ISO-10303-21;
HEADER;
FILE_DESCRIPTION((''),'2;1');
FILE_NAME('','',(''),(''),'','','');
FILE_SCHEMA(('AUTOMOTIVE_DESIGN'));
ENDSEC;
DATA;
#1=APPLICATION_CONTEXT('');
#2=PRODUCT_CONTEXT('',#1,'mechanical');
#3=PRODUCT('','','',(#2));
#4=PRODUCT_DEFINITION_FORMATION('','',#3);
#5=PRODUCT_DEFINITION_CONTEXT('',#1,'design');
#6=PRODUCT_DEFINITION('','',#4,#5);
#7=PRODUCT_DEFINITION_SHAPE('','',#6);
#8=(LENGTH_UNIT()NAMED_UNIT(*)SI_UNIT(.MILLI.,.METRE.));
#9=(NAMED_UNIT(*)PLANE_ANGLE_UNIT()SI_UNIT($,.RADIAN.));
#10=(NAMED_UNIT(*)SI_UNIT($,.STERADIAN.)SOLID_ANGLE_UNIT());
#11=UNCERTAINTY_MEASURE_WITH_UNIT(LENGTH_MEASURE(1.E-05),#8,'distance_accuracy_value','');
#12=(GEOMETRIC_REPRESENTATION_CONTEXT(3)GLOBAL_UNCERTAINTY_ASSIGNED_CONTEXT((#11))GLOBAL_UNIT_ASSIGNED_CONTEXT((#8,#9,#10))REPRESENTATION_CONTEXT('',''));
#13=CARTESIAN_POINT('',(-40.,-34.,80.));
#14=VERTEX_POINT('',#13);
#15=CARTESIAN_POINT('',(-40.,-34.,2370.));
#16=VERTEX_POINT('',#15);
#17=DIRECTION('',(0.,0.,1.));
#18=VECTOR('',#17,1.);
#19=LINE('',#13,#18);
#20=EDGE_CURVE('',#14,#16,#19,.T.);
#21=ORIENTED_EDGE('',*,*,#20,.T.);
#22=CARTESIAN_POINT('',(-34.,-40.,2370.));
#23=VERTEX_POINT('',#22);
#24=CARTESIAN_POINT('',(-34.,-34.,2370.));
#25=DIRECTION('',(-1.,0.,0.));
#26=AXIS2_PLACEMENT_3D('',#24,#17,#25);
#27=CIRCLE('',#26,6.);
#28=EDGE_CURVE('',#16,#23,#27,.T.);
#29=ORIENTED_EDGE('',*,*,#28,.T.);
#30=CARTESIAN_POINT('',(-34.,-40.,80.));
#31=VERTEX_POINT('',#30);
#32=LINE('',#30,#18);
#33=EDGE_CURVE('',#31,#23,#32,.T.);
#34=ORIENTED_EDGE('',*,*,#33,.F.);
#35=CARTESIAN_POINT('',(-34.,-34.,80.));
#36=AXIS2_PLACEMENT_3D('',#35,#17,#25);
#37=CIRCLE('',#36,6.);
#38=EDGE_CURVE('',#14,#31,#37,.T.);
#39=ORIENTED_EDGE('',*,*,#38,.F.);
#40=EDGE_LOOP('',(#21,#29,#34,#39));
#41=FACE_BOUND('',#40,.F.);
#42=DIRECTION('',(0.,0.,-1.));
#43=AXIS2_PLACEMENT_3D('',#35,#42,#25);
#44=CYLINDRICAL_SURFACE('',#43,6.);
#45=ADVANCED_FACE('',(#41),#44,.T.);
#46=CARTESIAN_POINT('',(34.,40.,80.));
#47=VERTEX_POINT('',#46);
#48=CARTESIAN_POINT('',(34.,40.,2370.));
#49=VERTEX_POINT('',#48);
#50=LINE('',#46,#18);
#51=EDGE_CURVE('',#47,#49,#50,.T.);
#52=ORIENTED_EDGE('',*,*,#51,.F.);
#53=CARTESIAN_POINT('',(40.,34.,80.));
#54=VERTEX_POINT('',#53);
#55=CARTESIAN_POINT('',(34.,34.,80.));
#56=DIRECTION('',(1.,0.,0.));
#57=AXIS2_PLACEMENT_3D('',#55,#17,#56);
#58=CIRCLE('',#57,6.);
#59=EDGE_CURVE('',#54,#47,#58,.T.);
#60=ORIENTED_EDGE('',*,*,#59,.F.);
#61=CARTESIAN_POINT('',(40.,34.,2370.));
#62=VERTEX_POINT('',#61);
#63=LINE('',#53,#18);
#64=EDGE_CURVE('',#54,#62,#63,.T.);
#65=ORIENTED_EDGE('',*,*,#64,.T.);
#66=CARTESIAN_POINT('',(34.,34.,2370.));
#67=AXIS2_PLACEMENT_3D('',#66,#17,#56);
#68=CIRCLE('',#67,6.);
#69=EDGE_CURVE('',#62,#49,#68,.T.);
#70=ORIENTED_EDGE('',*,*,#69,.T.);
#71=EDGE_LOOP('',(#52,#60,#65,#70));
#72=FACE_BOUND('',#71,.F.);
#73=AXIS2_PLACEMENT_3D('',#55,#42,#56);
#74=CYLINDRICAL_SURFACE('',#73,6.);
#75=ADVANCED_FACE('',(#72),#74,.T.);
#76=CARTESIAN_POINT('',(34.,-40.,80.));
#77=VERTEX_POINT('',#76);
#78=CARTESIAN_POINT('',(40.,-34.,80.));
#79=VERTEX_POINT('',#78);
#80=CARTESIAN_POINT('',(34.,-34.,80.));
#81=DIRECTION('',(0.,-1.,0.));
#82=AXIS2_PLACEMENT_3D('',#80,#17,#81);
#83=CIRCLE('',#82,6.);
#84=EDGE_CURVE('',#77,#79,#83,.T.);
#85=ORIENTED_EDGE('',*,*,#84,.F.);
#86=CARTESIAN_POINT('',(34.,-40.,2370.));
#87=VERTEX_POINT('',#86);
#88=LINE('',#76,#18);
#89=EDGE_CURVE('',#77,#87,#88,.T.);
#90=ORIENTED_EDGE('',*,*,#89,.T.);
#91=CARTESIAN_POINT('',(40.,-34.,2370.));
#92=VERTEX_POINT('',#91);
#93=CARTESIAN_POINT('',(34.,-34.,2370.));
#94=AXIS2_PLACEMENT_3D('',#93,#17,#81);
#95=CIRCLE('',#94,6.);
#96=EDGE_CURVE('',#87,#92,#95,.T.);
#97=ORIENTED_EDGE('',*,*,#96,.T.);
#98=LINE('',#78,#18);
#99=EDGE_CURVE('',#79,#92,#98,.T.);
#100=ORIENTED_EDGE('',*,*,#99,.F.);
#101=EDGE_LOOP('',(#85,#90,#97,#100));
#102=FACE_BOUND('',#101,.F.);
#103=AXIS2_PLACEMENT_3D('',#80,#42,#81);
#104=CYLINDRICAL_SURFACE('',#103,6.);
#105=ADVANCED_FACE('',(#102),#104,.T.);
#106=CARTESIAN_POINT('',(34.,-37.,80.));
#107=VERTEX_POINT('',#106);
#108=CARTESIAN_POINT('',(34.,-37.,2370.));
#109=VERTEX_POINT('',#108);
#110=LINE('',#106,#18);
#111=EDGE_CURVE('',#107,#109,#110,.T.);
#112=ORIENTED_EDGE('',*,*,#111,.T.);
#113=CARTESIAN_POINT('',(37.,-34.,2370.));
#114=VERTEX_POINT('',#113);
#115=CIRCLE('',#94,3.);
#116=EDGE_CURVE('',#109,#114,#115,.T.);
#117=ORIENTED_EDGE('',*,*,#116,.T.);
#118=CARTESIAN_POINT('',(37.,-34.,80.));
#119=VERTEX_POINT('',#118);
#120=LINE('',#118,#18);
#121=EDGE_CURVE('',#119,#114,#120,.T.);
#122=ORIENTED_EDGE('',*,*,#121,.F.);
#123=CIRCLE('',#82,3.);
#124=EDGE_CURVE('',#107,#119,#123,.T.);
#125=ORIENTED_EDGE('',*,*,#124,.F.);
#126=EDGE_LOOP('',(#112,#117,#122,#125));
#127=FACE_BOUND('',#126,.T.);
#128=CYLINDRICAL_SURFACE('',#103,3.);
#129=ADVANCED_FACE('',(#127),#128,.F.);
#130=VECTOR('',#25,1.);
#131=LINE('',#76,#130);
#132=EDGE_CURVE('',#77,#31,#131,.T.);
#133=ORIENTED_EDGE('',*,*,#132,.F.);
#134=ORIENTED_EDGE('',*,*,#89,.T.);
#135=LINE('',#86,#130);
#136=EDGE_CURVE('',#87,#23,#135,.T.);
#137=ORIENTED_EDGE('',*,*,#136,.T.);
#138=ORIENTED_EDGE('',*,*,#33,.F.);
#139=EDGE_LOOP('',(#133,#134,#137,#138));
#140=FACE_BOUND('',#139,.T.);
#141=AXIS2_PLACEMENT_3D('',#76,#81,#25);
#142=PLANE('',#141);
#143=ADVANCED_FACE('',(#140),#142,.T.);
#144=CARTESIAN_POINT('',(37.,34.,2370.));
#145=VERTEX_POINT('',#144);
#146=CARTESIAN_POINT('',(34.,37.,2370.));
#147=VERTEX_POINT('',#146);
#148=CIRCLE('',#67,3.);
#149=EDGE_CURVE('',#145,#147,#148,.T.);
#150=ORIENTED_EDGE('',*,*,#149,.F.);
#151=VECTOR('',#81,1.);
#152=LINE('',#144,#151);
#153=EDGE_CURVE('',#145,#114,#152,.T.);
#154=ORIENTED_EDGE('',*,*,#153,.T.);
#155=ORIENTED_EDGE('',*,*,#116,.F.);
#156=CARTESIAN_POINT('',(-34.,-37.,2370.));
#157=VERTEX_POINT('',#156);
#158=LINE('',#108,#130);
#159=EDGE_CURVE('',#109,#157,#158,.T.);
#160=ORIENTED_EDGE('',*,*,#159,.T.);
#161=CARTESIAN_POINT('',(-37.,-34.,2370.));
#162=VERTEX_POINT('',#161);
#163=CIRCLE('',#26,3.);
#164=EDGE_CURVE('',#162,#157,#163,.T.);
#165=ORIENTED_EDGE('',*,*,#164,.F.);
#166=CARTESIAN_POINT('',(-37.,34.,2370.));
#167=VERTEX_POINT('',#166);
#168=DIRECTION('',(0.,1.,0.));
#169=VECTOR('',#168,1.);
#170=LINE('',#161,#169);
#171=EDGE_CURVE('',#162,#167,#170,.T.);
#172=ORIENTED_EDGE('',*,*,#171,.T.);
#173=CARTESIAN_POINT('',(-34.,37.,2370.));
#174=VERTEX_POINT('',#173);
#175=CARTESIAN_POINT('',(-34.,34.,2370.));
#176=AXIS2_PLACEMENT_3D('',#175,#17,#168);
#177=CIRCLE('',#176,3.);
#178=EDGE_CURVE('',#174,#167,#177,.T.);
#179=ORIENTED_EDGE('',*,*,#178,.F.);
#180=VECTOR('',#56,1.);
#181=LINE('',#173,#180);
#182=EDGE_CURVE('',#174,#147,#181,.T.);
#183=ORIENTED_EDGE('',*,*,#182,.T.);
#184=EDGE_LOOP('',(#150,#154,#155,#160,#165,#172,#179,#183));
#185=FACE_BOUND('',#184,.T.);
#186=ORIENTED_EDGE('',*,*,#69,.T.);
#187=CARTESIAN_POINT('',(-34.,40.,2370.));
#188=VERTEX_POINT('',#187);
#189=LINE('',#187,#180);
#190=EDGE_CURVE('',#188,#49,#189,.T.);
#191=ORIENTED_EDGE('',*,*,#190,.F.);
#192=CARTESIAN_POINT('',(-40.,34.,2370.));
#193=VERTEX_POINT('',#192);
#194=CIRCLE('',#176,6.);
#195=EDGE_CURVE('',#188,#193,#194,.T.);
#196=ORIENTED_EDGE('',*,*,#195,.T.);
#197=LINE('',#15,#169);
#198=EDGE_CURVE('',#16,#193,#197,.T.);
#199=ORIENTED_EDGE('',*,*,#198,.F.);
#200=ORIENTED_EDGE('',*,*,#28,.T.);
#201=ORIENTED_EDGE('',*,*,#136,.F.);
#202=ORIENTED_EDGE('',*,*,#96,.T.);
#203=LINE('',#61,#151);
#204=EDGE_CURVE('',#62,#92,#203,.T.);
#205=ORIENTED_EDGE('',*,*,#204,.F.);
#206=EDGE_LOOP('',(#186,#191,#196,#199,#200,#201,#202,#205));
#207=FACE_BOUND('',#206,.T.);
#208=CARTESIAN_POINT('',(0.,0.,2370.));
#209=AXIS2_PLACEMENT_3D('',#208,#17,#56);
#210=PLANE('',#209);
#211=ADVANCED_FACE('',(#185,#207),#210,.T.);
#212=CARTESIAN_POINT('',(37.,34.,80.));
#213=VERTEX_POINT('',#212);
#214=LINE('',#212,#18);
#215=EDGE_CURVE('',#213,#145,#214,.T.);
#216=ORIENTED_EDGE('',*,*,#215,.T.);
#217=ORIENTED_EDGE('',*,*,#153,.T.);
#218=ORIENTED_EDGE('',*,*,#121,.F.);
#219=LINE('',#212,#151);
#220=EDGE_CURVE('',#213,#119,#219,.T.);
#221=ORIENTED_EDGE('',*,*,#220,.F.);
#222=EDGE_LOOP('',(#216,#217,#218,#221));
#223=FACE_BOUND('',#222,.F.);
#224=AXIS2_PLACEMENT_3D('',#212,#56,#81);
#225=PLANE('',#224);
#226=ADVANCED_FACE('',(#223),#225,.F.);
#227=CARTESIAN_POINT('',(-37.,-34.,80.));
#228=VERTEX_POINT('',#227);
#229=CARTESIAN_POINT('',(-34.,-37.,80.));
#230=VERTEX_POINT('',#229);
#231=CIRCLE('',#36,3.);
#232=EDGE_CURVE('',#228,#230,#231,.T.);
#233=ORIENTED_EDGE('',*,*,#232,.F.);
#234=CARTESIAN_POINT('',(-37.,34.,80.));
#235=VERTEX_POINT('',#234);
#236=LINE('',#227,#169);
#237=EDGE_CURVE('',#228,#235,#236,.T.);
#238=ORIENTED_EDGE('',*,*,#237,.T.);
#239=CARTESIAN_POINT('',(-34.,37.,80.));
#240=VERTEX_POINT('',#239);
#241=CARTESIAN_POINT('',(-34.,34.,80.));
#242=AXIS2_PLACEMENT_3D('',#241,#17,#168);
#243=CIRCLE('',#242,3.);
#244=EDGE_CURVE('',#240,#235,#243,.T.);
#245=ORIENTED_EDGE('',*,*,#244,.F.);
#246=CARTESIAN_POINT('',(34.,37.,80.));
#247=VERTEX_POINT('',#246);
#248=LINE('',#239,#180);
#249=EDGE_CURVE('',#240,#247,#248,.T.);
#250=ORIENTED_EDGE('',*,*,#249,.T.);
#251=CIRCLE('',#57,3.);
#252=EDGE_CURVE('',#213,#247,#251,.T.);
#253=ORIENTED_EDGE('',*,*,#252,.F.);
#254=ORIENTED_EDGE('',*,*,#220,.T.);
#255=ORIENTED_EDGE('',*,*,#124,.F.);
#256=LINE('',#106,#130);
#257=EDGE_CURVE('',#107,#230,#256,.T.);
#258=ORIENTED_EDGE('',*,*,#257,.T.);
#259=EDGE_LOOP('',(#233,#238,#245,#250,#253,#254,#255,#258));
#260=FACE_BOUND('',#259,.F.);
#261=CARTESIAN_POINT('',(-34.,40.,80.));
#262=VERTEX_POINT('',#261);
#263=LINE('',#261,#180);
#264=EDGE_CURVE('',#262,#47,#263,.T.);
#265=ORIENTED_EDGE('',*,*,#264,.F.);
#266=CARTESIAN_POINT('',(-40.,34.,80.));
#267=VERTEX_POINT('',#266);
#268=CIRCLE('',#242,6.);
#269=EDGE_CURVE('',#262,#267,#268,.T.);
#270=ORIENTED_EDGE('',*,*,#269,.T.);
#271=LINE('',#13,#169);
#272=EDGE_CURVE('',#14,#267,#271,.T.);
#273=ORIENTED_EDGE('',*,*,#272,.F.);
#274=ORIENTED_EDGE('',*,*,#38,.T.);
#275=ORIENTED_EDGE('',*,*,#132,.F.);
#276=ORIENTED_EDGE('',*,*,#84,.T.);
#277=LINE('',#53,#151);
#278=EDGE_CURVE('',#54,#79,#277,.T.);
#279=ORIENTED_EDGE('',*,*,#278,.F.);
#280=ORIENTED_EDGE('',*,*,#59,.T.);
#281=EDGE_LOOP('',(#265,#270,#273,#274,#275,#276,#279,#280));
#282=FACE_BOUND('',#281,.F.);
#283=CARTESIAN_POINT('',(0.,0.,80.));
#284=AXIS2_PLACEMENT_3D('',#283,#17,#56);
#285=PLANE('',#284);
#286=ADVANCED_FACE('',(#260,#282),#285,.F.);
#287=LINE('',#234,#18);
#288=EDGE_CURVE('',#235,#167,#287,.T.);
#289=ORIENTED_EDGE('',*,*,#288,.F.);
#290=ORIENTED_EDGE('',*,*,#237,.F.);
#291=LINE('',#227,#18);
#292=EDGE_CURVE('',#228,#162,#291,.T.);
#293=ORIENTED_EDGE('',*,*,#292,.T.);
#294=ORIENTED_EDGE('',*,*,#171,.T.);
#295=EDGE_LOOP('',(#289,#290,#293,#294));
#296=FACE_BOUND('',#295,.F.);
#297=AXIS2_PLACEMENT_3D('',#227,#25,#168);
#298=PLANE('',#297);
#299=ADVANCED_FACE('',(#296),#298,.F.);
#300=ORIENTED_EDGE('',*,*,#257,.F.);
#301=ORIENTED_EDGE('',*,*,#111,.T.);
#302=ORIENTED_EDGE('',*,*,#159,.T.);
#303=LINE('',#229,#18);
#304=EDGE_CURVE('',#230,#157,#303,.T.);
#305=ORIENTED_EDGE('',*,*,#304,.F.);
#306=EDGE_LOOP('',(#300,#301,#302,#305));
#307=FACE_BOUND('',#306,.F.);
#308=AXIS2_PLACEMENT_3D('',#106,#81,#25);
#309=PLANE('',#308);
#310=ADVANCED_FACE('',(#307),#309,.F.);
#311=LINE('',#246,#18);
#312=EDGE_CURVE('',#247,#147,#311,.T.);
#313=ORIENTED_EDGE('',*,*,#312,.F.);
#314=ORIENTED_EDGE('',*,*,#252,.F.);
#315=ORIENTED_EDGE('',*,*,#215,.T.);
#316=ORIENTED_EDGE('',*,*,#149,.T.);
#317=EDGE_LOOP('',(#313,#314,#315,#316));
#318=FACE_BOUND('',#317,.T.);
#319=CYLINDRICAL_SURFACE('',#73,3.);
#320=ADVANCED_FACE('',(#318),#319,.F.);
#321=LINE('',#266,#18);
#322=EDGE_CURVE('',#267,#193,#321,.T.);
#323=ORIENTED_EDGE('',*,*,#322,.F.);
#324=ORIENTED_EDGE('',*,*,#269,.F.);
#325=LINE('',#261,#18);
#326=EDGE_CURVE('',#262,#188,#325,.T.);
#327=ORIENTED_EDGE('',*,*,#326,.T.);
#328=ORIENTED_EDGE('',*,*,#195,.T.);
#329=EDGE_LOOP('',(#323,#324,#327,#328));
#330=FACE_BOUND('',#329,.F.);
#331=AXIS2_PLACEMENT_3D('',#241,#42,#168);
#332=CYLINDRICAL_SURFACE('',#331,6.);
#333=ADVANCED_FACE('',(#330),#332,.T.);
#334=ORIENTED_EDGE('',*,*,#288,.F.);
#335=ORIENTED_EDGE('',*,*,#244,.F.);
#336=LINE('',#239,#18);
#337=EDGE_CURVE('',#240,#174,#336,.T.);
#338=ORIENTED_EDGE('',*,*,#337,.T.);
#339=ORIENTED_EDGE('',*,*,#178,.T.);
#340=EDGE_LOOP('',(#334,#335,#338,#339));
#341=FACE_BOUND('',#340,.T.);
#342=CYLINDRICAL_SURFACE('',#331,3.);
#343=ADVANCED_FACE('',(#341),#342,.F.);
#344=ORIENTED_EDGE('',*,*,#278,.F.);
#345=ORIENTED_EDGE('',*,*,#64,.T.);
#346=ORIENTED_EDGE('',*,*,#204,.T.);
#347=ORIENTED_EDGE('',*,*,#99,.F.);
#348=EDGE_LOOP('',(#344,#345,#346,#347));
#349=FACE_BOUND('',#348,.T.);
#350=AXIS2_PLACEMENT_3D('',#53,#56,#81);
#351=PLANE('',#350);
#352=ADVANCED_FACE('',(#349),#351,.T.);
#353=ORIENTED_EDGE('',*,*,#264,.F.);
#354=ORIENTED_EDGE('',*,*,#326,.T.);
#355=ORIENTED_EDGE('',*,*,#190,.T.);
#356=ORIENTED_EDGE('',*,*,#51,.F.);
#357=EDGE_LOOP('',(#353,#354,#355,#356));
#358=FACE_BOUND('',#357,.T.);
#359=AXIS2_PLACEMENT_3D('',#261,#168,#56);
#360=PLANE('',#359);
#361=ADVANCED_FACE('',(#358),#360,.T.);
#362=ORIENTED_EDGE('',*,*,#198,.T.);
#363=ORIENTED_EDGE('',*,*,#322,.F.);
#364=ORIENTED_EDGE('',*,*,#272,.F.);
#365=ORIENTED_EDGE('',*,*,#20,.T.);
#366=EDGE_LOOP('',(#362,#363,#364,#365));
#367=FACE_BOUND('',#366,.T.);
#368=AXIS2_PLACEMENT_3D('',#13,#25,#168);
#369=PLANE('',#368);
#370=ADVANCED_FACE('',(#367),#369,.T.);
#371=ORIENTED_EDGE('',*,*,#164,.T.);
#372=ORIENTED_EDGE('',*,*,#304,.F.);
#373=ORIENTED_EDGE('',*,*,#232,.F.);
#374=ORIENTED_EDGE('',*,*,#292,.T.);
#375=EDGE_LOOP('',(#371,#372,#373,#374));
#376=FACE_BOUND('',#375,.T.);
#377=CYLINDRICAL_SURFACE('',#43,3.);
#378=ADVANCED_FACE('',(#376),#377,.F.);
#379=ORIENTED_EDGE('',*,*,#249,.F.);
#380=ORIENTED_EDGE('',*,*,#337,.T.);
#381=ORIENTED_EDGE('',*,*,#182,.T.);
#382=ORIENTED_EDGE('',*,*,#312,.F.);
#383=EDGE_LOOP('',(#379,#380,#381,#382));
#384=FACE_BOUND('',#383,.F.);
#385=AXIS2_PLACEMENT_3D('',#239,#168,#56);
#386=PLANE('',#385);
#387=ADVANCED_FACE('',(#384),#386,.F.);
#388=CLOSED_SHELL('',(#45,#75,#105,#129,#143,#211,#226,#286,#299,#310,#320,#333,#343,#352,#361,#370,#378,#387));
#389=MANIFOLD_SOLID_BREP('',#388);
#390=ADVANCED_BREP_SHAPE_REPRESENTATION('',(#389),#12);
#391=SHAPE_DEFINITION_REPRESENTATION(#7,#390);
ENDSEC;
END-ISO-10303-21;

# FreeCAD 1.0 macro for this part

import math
import FreeCAD as App
import Part
import Sketcher

V = App.Vector
Q = App.Units.Quantity

doc = App.newDocument("Part")
body = doc.addObject("PartDesign::Body", "Body")

sketch1 = body.newObject("Sketcher::SketchObject", "Sketch")
sketch1.AttachmentSupport = (doc.getObject("XY_Plane"), [""])
sketch1.MapMode = "FlatFace"
sketch1.AttachmentOffset = App.Placement(V(0, 0, 80), App.Rotation())
sketch1.addGeometry([
    Part.LineSegment(V(-40, 34, 0), V(-40, -34, 0)),
    Part.ArcOfCircle(Part.Circle(V(-34, -34, 0), V(0, 0, 1), 6), math.radians(180), math.radians(270)),
    Part.LineSegment(V(-34, -40, 0), V(34, -40, 0)),
    Part.ArcOfCircle(Part.Circle(V(34, -34, 0), V(0, 0, 1), 6), math.radians(-90), math.radians(0)),
    Part.LineSegment(V(40, -34, 0), V(40, 34, 0)),
    Part.ArcOfCircle(Part.Circle(V(34, 34, 0), V(0, 0, 1), 6), math.radians(0), math.radians(90)),
    Part.LineSegment(V(34, 40, 0), V(-34, 40, 0)),
    Part.ArcOfCircle(Part.Circle(V(-34, 34, 0), V(0, 0, 1), 6), math.radians(90), math.radians(180)),
    Part.ArcOfCircle(Part.Circle(V(-34, 34, 0), V(0, 0, 1), 3), math.radians(90), math.radians(180)),
    Part.LineSegment(V(-34, 37, 0), V(34, 37, 0)),
    Part.ArcOfCircle(Part.Circle(V(34, 34, 0), V(0, 0, 1), 3), math.radians(0), math.radians(90)),
    Part.LineSegment(V(37, 34, 0), V(37, -34, 0)),
    Part.ArcOfCircle(Part.Circle(V(34, -34, 0), V(0, 0, 1), 3), math.radians(-90), math.radians(0)),
    Part.LineSegment(V(34, -37, 0), V(-34, -37, 0)),
    Part.ArcOfCircle(Part.Circle(V(-34, -34, 0), V(0, 0, 1), 3), math.radians(180), math.radians(270)),
    Part.LineSegment(V(-37, -34, 0), V(-37, 34, 0)),
], False)
sketch1.addConstraint([
    Sketcher.Constraint("Tangent", 0, 2, 1, 1),
    Sketcher.Constraint("Tangent", 1, 2, 2, 1),
    Sketcher.Constraint("Tangent", 2, 2, 3, 1),
    Sketcher.Constraint("Tangent", 3, 2, 4, 1),
    Sketcher.Constraint("Tangent", 4, 2, 5, 1),
    Sketcher.Constraint("Tangent", 5, 2, 6, 1),
    Sketcher.Constraint("Tangent", 6, 2, 7, 1),
    Sketcher.Constraint("Tangent", 7, 2, 0, 1),
    Sketcher.Constraint("Tangent", 8, 1, 9, 1),
    Sketcher.Constraint("Tangent", 9, 2, 10, 2),
    Sketcher.Constraint("Tangent", 10, 1, 11, 1),
    Sketcher.Constraint("Tangent", 11, 2, 12, 2),
    Sketcher.Constraint("Tangent", 12, 1, 13, 1),
    Sketcher.Constraint("Tangent", 13, 2, 14, 2),
    Sketcher.Constraint("Tangent", 14, 1, 15, 1),
    Sketcher.Constraint("Tangent", 15, 2, 8, 2),
    Sketcher.Constraint("Vertical", 0),
    Sketcher.Constraint("Horizontal", 2),
    Sketcher.Constraint("Vertical", 4),
    Sketcher.Constraint("Horizontal", 6),
    Sketcher.Constraint("Horizontal", 9),
    Sketcher.Constraint("Vertical", 11),
    Sketcher.Constraint("Horizontal", 13),
    Sketcher.Constraint("Vertical", 15),
    Sketcher.Constraint("Coincident", 8, 3, 7, 3),
    Sketcher.Constraint("Coincident", 10, 3, 5, 3),
    Sketcher.Constraint("Coincident", 12, 3, 3, 3),
    Sketcher.Constraint("Equal", 1, 3),
    Sketcher.Constraint("Equal", 3, 5),
    Sketcher.Constraint("Equal", 5, 7),
    Sketcher.Constraint("Equal", 12, 14),
    Sketcher.Constraint("Symmetric", 1, 3, 5, 3, -1, 1),
    Sketcher.Constraint("Equal", 13, 0),
    Sketcher.Constraint("Radius", 1, Q("6 mm")),
    Sketcher.Constraint("Radius", 8, Q("3 mm")),
    Sketcher.Constraint("DistanceX", 0, 2, -1, 1, Q("40 mm")),
])
pad1 = body.newObject("PartDesign::Pad", "Pad")
pad1.Profile = sketch1
pad1.Length = 2290

doc.recompute()
